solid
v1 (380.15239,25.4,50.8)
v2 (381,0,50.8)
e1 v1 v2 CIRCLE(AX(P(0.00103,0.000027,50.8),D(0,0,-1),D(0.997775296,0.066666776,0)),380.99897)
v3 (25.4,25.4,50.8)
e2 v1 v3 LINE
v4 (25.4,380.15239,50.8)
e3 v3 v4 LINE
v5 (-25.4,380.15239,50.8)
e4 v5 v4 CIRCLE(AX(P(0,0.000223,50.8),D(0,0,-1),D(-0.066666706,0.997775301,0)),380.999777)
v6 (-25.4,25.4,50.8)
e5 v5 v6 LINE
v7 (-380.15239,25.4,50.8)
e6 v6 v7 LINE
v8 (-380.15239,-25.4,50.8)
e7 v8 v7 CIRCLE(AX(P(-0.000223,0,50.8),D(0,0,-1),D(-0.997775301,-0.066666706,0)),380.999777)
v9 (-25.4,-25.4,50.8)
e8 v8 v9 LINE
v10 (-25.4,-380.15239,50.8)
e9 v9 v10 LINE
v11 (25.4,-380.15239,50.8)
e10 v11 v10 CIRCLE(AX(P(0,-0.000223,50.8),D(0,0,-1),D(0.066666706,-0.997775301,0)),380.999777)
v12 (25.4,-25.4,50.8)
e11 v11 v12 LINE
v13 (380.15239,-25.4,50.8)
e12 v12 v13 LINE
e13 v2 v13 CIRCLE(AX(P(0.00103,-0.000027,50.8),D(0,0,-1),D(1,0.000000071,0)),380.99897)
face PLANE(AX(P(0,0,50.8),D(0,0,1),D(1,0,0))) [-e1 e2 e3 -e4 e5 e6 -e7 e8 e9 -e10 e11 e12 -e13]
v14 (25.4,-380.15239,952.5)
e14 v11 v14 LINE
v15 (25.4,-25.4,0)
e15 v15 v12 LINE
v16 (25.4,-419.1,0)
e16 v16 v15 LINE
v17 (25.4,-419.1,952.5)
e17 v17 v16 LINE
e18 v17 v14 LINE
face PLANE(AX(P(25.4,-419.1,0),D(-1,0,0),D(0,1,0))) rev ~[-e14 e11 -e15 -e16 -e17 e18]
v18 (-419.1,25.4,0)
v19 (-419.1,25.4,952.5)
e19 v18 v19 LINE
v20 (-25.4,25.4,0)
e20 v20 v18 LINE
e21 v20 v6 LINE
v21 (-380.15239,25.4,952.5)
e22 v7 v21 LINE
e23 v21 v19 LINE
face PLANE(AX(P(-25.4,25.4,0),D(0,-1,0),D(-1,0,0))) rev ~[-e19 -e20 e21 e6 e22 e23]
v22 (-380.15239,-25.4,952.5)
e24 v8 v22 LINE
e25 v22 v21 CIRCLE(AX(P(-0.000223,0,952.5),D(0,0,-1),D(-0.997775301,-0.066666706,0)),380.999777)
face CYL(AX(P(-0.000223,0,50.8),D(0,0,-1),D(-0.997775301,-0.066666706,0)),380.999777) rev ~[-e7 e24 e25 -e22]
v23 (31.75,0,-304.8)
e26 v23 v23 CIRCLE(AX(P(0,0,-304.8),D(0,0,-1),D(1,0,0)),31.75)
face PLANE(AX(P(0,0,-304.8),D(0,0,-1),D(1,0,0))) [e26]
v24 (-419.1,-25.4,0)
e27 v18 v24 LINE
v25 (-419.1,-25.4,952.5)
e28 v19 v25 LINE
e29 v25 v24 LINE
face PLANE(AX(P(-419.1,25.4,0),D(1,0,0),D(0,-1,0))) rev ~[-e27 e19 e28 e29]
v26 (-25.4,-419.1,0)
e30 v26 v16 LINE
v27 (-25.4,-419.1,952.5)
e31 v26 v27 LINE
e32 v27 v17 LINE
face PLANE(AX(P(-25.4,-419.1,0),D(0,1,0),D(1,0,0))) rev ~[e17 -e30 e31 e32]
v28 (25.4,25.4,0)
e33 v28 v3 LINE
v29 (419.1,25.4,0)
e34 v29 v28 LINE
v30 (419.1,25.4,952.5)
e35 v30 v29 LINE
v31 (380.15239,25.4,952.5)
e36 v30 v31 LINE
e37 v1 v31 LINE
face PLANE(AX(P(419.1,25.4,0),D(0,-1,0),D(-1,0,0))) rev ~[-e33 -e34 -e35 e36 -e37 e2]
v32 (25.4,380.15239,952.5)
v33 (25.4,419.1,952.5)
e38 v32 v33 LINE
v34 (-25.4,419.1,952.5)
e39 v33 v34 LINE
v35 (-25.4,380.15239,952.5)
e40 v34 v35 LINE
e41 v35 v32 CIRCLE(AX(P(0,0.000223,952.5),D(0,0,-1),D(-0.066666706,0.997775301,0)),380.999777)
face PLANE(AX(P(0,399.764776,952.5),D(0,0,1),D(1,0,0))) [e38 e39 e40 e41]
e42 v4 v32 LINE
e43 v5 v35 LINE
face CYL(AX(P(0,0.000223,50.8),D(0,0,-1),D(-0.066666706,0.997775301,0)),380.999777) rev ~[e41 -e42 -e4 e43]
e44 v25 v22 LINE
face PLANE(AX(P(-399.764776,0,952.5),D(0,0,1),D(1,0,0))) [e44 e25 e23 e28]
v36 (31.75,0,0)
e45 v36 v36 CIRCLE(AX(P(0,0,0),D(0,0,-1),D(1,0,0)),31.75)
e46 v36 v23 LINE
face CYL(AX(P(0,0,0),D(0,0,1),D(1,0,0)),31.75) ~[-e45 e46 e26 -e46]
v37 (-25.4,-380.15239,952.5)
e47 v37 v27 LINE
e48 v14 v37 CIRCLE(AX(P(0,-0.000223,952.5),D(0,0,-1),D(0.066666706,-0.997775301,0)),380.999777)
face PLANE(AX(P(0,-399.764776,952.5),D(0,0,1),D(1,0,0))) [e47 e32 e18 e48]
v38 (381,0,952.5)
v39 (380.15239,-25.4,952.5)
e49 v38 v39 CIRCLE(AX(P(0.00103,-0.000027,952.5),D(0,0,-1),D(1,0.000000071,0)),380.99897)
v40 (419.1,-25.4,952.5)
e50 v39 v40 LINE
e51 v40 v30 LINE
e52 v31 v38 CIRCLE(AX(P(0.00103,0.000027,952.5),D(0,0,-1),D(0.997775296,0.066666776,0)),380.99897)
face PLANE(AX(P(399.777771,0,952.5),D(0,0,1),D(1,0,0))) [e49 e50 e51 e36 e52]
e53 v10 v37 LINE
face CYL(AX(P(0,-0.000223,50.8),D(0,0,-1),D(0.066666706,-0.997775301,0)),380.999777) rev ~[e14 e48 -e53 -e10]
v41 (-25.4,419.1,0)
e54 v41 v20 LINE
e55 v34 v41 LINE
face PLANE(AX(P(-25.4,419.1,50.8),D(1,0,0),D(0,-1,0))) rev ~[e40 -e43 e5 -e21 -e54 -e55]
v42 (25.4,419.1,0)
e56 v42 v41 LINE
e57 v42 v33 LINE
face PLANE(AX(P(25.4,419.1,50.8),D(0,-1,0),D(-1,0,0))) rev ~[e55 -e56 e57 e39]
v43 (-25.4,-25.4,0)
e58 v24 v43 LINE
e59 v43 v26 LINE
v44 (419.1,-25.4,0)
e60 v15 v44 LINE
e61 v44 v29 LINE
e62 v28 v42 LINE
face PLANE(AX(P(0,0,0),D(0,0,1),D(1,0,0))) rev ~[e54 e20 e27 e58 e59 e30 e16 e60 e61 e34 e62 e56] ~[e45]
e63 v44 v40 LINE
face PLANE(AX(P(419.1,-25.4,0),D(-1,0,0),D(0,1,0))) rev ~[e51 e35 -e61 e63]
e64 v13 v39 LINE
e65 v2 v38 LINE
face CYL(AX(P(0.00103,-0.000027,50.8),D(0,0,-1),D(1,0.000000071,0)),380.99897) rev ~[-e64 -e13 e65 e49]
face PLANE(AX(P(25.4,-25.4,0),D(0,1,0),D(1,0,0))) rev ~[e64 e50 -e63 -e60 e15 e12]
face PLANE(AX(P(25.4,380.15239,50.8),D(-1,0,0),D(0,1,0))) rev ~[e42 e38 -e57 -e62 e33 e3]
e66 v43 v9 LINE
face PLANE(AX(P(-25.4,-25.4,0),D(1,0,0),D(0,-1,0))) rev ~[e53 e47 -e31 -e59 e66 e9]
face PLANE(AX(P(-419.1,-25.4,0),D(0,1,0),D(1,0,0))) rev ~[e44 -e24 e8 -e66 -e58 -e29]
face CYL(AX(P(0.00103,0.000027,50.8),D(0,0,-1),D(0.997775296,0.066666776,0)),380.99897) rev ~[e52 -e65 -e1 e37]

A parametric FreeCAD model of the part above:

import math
import FreeCAD as App
import Part
import Sketcher
from FreeCAD import Vector
Q = App.Units.Quantity


def add_polygon(sketch, points):
    """Adds a closed chain of lines whose ends are joined by coincident constraints."""
    first, n = sketch.GeometryCount, len(points)
    for a, b in zip(points, points[1:] + points[:1]):
        sketch.addGeometry(Part.LineSegment(App.Vector(*a, 0), App.Vector(*b, 0)), False)
    for i in range(n):
        sketch.addConstraint(Sketcher.Constraint("Coincident", first + i, 2, first + (i + 1) % n, 1))

doc = App.newDocument("Part")
body = doc.addObject("PartDesign::Body", "Body")

# Sketch on XY plane
sketch1 = body.newObject("Sketcher::SketchObject", "Sketch")
sketch1.AttachmentSupport = (doc.getObject("XY_Plane"), [""])
sketch1.MapMode = "FlatFace"
add_polygon(sketch1, [(25, 419), (-25, 419), (-25, 25), (-419, 25), (-419, -25), (-25, -25), (-25, -419), (25, -419), (25, -25), (419, -25), (419, 25), (25, 25)])  # lines 0-11
sketch1.addConstraint([
    Sketcher.Constraint("Horizontal", 0),
    Sketcher.Constraint("Vertical", 1),
    Sketcher.Constraint("Horizontal", 2),
    Sketcher.Constraint("Vertical", 3),
    Sketcher.Constraint("Horizontal", 4),
    Sketcher.Constraint("Vertical", 5),
    Sketcher.Constraint("Horizontal", 6),
    Sketcher.Constraint("Vertical", 7),
    Sketcher.Constraint("Horizontal", 8),
    Sketcher.Constraint("Vertical", 9),
    Sketcher.Constraint("Horizontal", 10),
    Sketcher.Constraint("Vertical", 11),
    Sketcher.Constraint("Symmetric", 0, 2, 6, 2, -1, 1),
    Sketcher.Constraint("Symmetric", 2, 2, 8, 2, -1, 1),
    Sketcher.Constraint("Symmetric", 4, 2, 10, 2, -1, 1),
    Sketcher.Constraint("Symmetric", 4, 2, 7, 2, -2),
    Sketcher.Constraint("Equal", 10, 1),
    Sketcher.Constraint("Equal", 6, 3),
    Sketcher.Constraint("DistanceX", 0, 2, 0, 1, Q("2 in")),
    Sketcher.Constraint("DistanceX", 2, 2, 2, 1, Q("15.5 in")),
])
pad1 = body.newObject("PartDesign::Pad", "Pad")
pad1.Profile = sketch1
pad1.Length = Q("2 in")

# Sketch on XY plane
sketch2 = body.newObject("Sketcher::SketchObject", "Sketch001")
sketch2.AttachmentSupport = (doc.getObject("XY_Plane"), [""])
sketch2.MapMode = "FlatFace"
sketch2.AttachmentOffset = App.Placement(Vector(0, 0, 2 * 25.4), App.Rotation())
sketch2.addGeometry([
    Part.ArcOfCircle(Part.Circle(Vector(0, 0.000223, 0), Vector(0, 0, 1), 380.999777), math.radians(86.177444), math.radians(93.822556)),  # 0
    Part.LineSegment(Vector(25.4, 380.15239, 0), Vector(25.4, 419.1, 0)),  # 1
    Part.LineSegment(Vector(25.4, 419.1, 0), Vector(-25.4, 419.1, 0)),  # 2
    Part.LineSegment(Vector(-25.4, 419.1, 0), Vector(-25.4, 380.15239, 0)),  # 3
    Part.ArcOfCircle(Part.Circle(Vector(-0.000223, 0, 0), Vector(0, 0, 1), 380.999777), math.radians(176.177444), math.radians(183.822556)),  # 4
    Part.LineSegment(Vector(-380.15239, 25.4, 0), Vector(-419.1, 25.4, 0)),  # 5
    Part.LineSegment(Vector(-419.1, 25.4, 0), Vector(-419.1, -25.4, 0)),  # 6
    Part.LineSegment(Vector(-419.1, -25.4, 0), Vector(-380.15239, -25.4, 0)),  # 7
    Part.LineSegment(Vector(25.4, -419.1, 0), Vector(25.4, -380.15239, 0)),  # 8
    Part.ArcOfCircle(Part.Circle(Vector(0, -0.000223, 0), Vector(0, 0, 1), 380.999777), math.radians(-93.822556), math.radians(-86.177444)),  # 9
    Part.LineSegment(Vector(-25.4, -380.15239, 0), Vector(-25.4, -419.1, 0)),  # 10
    Part.LineSegment(Vector(-25.4, -419.1, 0), Vector(25.4, -419.1, 0)),  # 11
    Part.ArcOfCircle(Part.Circle(Vector(0.00103, 0.000027, 0), Vector(0, 0, 1), 380.99897), math.radians(-0.000004), math.radians(3.82256)),  # 12
    Part.ArcOfCircle(Part.Circle(Vector(0.00103, -0.000027, 0), Vector(0, 0, 1), 380.99897), math.radians(-3.82256), math.radians(0.000004)),  # 13
    Part.LineSegment(Vector(380.15239, -25.4, 0), Vector(419.1, -25.4, 0)),  # 14
    Part.LineSegment(Vector(419.1, -25.4, 0), Vector(419.1, 25.4, 0)),  # 15
    Part.LineSegment(Vector(419.1, 25.4, 0), Vector(380.15239, 25.4, 0)),  # 16
], False)
sketch2.addConstraint([
    Sketcher.Constraint("Coincident", 0, 1, 1, 1),
    Sketcher.Constraint("Coincident", 1, 2, 2, 1),
    Sketcher.Constraint("Coincident", 2, 2, 3, 1),
    Sketcher.Constraint("Coincident", 3, 2, 0, 2),
    Sketcher.Constraint("Coincident", 4, 1, 5, 1),
    Sketcher.Constraint("Coincident", 5, 2, 6, 1),
    Sketcher.Constraint("Coincident", 6, 2, 7, 1),
    Sketcher.Constraint("Coincident", 7, 2, 4, 2),
    Sketcher.Constraint("Coincident", 8, 2, 9, 2),
    Sketcher.Constraint("Coincident", 9, 1, 10, 1),
    Sketcher.Constraint("Coincident", 10, 2, 11, 1),
    Sketcher.Constraint("Coincident", 11, 2, 8, 1),
    Sketcher.Constraint("Coincident", 12, 1, 13, 2),
    Sketcher.Constraint("Coincident", 13, 1, 14, 1),
    Sketcher.Constraint("Coincident", 14, 2, 15, 1),
    Sketcher.Constraint("Coincident", 15, 2, 16, 1),
    Sketcher.Constraint("Coincident", 16, 2, 12, 2),
    Sketcher.Constraint("Vertical", 1),
    Sketcher.Constraint("Horizontal", 2),
    Sketcher.Constraint("Vertical", 3),
    Sketcher.Constraint("Horizontal", 5),
    Sketcher.Constraint("Vertical", 6),
    Sketcher.Constraint("Horizontal", 7),
    Sketcher.Constraint("Vertical", 8),
    Sketcher.Constraint("Vertical", 10),
    Sketcher.Constraint("Horizontal", 11),
    Sketcher.Constraint("Horizontal", 14),
    Sketcher.Constraint("Vertical", 15),
    Sketcher.Constraint("Horizontal", 16),
    Sketcher.Constraint("PointOnObject", 0, 3, -2),
    Sketcher.Constraint("PointOnObject", 4, 3, -1),
    Sketcher.Constraint("PointOnObject", 9, 3, -2),
    Sketcher.Constraint("PointOnObject", 12, 1, -1),
    Sketcher.Constraint("DistanceX", 2, 2, 2, 1, Q("2 in")),
    Sketcher.Constraint("DistanceX", 11, 1, 11, 2, Q("2 in")),
    Sketcher.Constraint("DistanceY", 6, 2, 6, 1, Q("2 in")),
    Sketcher.Constraint("DistanceY", 15, 1, 15, 2, Q("2 in")),
    Sketcher.Constraint("DistanceX", -1, 1, 1, 2, Q("1 in")),
    Sketcher.Constraint("DistanceY", -1, 1, 5, 2, Q("1 in")),
    Sketcher.Constraint("DistanceX", -1, 1, 8, 2, Q("1 in")),
    Sketcher.Constraint("DistanceX", -1, 1, 12, 1, Q("15 in")),
    Sketcher.Constraint("DistanceY", 14, 2, -1, 1, Q("1 in")),
    Sketcher.Constraint("DistanceY", -1, 1, 1, 2, Q("16.5 in")),
    Sketcher.Constraint("DistanceX", 5, 2, -1, 1, Q("16.5 in")),
    Sketcher.Constraint("DistanceY", 10, 2, -1, 1, Q("16.5 in")),
    Sketcher.Constraint("DistanceX", -1, 1, 14, 2, Q("16.5 in")),
    Sketcher.Constraint("Radius", 12, 380.99897),
    Sketcher.Constraint("Radius", 13, 380.99897),
    Sketcher.Constraint("Radius", 0, 380.999777),
    Sketcher.Constraint("Radius", 4, 380.999777),
    Sketcher.Constraint("Radius", 9, 380.999777),
    Sketcher.Constraint("DistanceX", 5, 2, 5, 1, 38.94761),
    Sketcher.Constraint("DistanceX", 14, 1, 14, 2, 38.94761),
    Sketcher.Constraint("DistanceX", 16, 2, 16, 1, 38.94761),
    Sketcher.Constraint("DistanceY", 1, 1, 1, 2, 38.94761),
    Sketcher.Constraint("DistanceY", 8, 1, 8, 2, 38.94761),
])
pad2 = body.newObject("PartDesign::Pad", "Pad001")
pad2.Profile = sketch2
pad2.Length = Q("35.5 in")

# Sketch on XY plane
sketch3 = body.newObject("Sketcher::SketchObject", "Sketch002")
sketch3.AttachmentSupport = (doc.getObject("XY_Plane"), [""])
sketch3.MapMode = "FlatFace"
sketch3.addGeometry(Part.Circle(Vector(0, 0, 0), Vector(0, 0, 1), 32), False)
sketch3.addConstraint([
    Sketcher.Constraint("Coincident", 0, 3, -1, 1),
    Sketcher.Constraint("Diameter", 0, Q("2.5 in")),
])
pad3 = body.newObject("PartDesign::Pad", "Pad002")
pad3.Profile = sketch3
pad3.Length = Q("12 in")
pad3.Reversed = True

doc.recompute()
